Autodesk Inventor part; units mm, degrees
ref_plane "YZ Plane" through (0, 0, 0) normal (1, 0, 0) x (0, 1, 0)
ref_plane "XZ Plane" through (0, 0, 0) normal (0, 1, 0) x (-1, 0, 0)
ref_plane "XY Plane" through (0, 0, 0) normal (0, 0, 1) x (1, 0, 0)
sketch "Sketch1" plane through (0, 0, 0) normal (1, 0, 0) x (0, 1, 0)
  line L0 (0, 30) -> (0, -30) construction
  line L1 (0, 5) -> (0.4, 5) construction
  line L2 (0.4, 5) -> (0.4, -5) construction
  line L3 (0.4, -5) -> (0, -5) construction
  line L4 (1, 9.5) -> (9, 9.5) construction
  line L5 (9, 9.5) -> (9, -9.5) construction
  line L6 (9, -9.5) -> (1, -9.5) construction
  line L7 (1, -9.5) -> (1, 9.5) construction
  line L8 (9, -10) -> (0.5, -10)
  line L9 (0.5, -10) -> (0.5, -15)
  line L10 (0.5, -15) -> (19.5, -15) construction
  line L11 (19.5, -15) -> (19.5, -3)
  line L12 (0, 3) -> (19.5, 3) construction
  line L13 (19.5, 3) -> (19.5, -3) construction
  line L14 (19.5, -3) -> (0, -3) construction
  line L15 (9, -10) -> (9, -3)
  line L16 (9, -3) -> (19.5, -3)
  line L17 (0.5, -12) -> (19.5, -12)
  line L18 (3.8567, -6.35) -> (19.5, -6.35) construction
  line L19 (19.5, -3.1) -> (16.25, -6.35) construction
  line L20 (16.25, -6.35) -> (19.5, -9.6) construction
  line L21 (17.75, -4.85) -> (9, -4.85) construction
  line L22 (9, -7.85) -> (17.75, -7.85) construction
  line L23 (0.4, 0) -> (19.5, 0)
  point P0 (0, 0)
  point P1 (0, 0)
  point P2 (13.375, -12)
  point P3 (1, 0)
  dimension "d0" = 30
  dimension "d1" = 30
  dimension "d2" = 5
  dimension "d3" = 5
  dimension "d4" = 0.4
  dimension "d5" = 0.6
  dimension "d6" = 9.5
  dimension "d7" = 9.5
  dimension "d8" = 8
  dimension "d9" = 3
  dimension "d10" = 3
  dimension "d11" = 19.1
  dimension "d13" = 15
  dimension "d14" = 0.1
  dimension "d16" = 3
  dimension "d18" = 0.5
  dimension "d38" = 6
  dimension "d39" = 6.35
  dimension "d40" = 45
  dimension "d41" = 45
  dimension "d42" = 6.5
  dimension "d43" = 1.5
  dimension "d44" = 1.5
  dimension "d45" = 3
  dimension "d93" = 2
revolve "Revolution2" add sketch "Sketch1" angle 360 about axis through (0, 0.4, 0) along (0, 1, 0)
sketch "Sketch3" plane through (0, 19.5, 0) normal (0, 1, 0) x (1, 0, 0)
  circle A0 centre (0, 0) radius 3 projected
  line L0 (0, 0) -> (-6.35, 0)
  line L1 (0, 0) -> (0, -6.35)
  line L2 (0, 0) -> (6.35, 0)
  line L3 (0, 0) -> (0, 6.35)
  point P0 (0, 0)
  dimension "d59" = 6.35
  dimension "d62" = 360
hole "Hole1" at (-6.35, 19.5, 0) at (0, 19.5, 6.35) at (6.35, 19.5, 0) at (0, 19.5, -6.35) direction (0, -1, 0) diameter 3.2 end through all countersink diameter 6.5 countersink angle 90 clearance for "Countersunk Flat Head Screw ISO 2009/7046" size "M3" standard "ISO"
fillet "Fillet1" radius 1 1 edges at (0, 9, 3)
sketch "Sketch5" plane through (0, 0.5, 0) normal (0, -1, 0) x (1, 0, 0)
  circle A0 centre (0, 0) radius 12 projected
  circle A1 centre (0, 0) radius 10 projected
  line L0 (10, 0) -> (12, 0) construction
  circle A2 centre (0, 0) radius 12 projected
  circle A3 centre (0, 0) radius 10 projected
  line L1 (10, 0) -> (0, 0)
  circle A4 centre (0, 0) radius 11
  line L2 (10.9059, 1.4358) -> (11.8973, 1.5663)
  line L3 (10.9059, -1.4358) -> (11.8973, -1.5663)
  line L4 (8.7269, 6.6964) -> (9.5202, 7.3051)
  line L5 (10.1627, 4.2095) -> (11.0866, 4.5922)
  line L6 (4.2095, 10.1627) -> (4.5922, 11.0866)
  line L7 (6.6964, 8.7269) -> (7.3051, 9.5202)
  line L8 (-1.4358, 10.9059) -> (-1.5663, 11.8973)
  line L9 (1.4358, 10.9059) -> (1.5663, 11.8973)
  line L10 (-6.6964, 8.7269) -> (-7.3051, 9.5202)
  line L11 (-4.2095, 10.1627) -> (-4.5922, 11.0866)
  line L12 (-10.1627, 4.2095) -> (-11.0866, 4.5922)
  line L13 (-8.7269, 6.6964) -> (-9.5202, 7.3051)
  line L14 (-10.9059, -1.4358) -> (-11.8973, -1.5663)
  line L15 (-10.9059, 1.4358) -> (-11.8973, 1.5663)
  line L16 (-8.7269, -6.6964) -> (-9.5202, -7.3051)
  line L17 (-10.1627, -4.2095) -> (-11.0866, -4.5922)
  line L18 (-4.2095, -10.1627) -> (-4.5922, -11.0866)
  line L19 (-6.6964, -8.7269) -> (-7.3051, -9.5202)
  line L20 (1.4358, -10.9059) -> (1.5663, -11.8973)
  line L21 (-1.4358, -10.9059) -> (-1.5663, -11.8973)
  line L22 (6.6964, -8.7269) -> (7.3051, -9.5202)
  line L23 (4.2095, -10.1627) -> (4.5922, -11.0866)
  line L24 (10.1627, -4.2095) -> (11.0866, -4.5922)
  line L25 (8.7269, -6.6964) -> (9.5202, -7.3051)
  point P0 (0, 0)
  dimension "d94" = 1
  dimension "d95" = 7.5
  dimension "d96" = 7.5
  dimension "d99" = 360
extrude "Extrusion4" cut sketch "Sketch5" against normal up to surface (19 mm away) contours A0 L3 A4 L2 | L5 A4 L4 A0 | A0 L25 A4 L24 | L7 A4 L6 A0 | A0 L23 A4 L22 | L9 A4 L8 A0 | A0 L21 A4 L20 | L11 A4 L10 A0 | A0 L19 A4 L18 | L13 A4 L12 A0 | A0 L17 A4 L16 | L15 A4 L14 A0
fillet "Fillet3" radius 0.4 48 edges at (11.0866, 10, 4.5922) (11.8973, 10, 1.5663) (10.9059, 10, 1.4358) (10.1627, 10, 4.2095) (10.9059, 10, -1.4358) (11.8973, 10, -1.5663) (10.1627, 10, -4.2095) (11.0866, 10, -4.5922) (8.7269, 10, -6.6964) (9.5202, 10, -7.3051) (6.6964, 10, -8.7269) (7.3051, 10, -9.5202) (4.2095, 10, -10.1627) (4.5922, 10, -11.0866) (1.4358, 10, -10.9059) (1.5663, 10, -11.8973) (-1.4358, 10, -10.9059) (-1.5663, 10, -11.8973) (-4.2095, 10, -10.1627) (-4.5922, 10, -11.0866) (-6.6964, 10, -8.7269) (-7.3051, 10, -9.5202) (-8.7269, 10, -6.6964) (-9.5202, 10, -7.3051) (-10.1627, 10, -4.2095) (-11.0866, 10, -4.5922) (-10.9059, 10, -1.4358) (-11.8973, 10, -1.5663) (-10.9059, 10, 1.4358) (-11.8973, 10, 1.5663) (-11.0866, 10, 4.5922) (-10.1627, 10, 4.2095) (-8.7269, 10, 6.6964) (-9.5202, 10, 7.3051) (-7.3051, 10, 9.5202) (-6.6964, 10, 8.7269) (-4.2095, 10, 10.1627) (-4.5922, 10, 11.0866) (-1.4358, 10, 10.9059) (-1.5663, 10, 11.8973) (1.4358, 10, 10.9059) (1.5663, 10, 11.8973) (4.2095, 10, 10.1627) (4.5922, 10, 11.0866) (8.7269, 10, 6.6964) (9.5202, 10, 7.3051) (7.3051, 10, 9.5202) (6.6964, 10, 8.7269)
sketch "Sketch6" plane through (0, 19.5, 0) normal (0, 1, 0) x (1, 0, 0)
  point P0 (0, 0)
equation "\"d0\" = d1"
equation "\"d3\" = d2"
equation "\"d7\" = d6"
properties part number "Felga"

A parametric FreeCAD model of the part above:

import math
import FreeCAD as App
import Part
import Sketcher
from FreeCAD import Vector
Q = App.Units.Quantity


def edges_at(feature, points):
    """Names of the edges that pass closest to the given points."""
    edges = feature.Shape.Edges
    near = lambda p: min(range(len(edges)), key=lambda i: edges[i].distToShape(Part.Vertex(*p))[0])
    return sorted({f"Edge{near(p) + 1}" for p in points})


def add_polygon(sketch, points):
    """Adds a closed chain of lines whose ends are joined by coincident constraints."""
    first, n = sketch.GeometryCount, len(points)
    for a, b in zip(points, points[1:] + points[:1]):
        sketch.addGeometry(Part.LineSegment(App.Vector(*a, 0), App.Vector(*b, 0)), False)
    for i in range(n):
        sketch.addConstraint(Sketcher.Constraint("Coincident", first + i, 2, first + (i + 1) % n, 1))

doc = App.newDocument("Part")
body = doc.addObject("PartDesign::Body", "Body")

sketch1 = body.newObject("Sketcher::SketchObject", "Sketch")
sketch1.AttachmentSupport = (doc.getObject("YZ_Plane"), [""])
sketch1.MapMode = "FlatFace"
add_polygon(sketch1, [(9, -3), (9, -10), (0.5, -10), (0.5, -12), (19.5, -12), (19.5, -3)])
sketch1.addConstraint([
    Sketcher.Constraint("Vertical", 0),
    Sketcher.Constraint("Horizontal", 1),
    Sketcher.Constraint("Vertical", 2),
    Sketcher.Constraint("Horizontal", 3),
    Sketcher.Constraint("Vertical", 4),
    Sketcher.Constraint("Horizontal", 5),
    Sketcher.Constraint("DistanceY", 2, 2, 2, 1, 2.0),
    Sketcher.Constraint("DistanceY", 4, 2, -1, 1, 3.0),
    Sketcher.Constraint("DistanceX", -1, 1, 1, 2, 0.5),
    Sketcher.Constraint("DistanceX", 3, 1, 3, 2, 19.0),
    Sketcher.Constraint("DistanceY", 0, 2, 0, 1, 7.0),
    Sketcher.Constraint("DistanceX", 1, 2, 1, 1, 8.5),
])
revolution = body.newObject("PartDesign::Revolution", "Revolution")
revolution.Profile = sketch1
revolution.ReferenceAxis = (sketch1, ["H_Axis"])
revolution.Angle = 360

sketch2 = body.newObject("Sketcher::SketchObject", "Sketch001")
sketch2.AttachmentSupport = (doc.getObject("XZ_Plane"), [""])
sketch2.MapMode = "FlatFace"
sketch2.AttachmentOffset = App.Placement(Vector(0, 0, -19.5), App.Rotation())
sketch2.addGeometry([
    Part.Circle(Vector(-6.3, 0, 0), Vector(0, 0, 1), 1.6),
    Part.Circle(Vector(0, 6.3, 0), Vector(0, 0, 1), 1.6),
    Part.Circle(Vector(6.3, 0, 0), Vector(0, 0, 1), 1.6),
    Part.Circle(Vector(0, -6.3, 0), Vector(0, 0, 1), 1.6),
], False)
sketch2.addConstraint([
    Sketcher.Constraint("Equal", 0, 1),
    Sketcher.Constraint("Equal", 1, 2),
    Sketcher.Constraint("Equal", 2, 3),
    Sketcher.Constraint("Symmetric", 0, 3, 2, 3, -1, 1),
    Sketcher.Constraint("Symmetric", 1, 3, 3, 3, -1, 1),
    Sketcher.Constraint("PointOnObject", 0, 3, -1),
    Sketcher.Constraint("PointOnObject", 1, 3, -2),
    Sketcher.Constraint("Diameter", 0, 3.2),
    Sketcher.Constraint("DistanceX", 0, 3, 2, 3, 12.7),
    Sketcher.Constraint("DistanceY", 3, 3, 1, 3, 12.7),
])
doc.recompute()
hole = body.newObject("PartDesign::Hole", "Hole")
hole.Profile = sketch2
hole.ThreadType = "None"
hole.Diameter = 3.2
hole.DepthType = "ThroughAll"
hole.HoleCutType = "Countersink"
hole.HoleCutDiameter = 6.5
hole.HoleCutCountersinkAngle = 90
hole.Reversed = True
doc.recompute()

fillet = body.newObject("PartDesign::Fillet", "Fillet")
fillet.Base = (hole, edges_at(hole, [(0, 9, 3)]))
fillet.Radius = 1

sketch3 = body.newObject("Sketcher::SketchObject", "Sketch002")
sketch3.AttachmentSupport = (doc.getObject("XZ_Plane"), [""])
sketch3.MapMode = "FlatFace"
sketch3.AttachmentOffset = App.Placement(Vector(0, 0, -0.5), App.Rotation())
sketch3.addGeometry([
    Part.ArcOfCircle(Part.Circle(Vector(0, 0, 0), Vector(0, 0, 1), 12), math.radians(-7.5), math.radians(7.5)),
    Part.LineSegment(Vector(11.9, 1.6, 0), Vector(10.9, 1.4, 0)),
    Part.ArcOfCircle(Part.Circle(Vector(0, 0, 0), Vector(0, 0, 1), 11), math.radians(-7.5), math.radians(7.5)),
    Part.LineSegment(Vector(10.9, -1.4, 0), Vector(11.9, -1.6, 0)),
    Part.LineSegment(Vector(10.2, 4.2, 0), Vector(11.1, 4.6, 0)),
    Part.ArcOfCircle(Part.Circle(Vector(0, 0, 0), Vector(0, 0, 1), 12), math.radians(22.5), math.radians(37.5)),
    Part.LineSegment(Vector(9.5, 7.3, 0), Vector(8.7, 6.7, 0)),
    Part.ArcOfCircle(Part.Circle(Vector(0, 0, 0), Vector(0, 0, 1), 11), math.radians(22.5), math.radians(37.5)),
    Part.ArcOfCircle(Part.Circle(Vector(0, 0, 0), Vector(0, 0, 1), 12), math.radians(-37.5), math.radians(-22.5)),
    Part.LineSegment(Vector(11.1, -4.6, 0), Vector(10.2, -4.2, 0)),
    Part.ArcOfCircle(Part.Circle(Vector(0, 0, 0), Vector(0, 0, 1), 11), math.radians(-37.5), math.radians(-22.5)),
    Part.LineSegment(Vector(8.7, -6.7, 0), Vector(9.5, -7.3, 0)),
    Part.LineSegment(Vector(6.7, 8.7, 0), Vector(7.3, 9.5, 0)),
    Part.ArcOfCircle(Part.Circle(Vector(0, 0, 0), Vector(0, 0, 1), 12), math.radians(52.5), math.radians(67.5)),
    Part.LineSegment(Vector(4.6, 11.1, 0), Vector(4.2, 10.2, 0)),
    Part.ArcOfCircle(Part.Circle(Vector(0, 0, 0), Vector(0, 0, 1), 11), math.radians(52.5), math.radians(67.5)),
    Part.ArcOfCircle(Part.Circle(Vector(0, 0, 0), Vector(0, 0, 1), 12), math.radians(-67.5), math.radians(-52.5)),
    Part.LineSegment(Vector(7.3, -9.5, 0), Vector(6.7, -8.7, 0)),
    Part.ArcOfCircle(Part.Circle(Vector(0, 0, 0), Vector(0, 0, 1), 11), math.radians(-67.5), math.radians(-52.5)),
    Part.LineSegment(Vector(4.2, -10.2, 0), Vector(4.6, -11.1, 0)),
    Part.LineSegment(Vector(1.4, 10.9, 0), Vector(1.6, 11.9, 0)),
    Part.ArcOfCircle(Part.Circle(Vector(0, 0, 0), Vector(0, 0, 1), 12), math.radians(82.5), math.radians(97.5)),
    Part.LineSegment(Vector(-1.6, 11.9, 0), Vector(-1.4, 10.9, 0)),
    Part.ArcOfCircle(Part.Circle(Vector(0, 0, 0), Vector(0, 0, 1), 11), math.radians(82.5), math.radians(97.5)),
    Part.ArcOfCircle(Part.Circle(Vector(0, 0, 0), Vector(0, 0, 1), 12), math.radians(-97.5), math.radians(-82.5)),
    Part.LineSegment(Vector(1.6, -11.9, 0), Vector(1.4, -10.9, 0)),
    Part.ArcOfCircle(Part.Circle(Vector(0, 0, 0), Vector(0, 0, 1), 11), math.radians(-97.5), math.radians(-82.5)),
    Part.LineSegment(Vector(-1.4, -10.9, 0), Vector(-1.6, -11.9, 0)),
    Part.LineSegment(Vector(-4.2, 10.2, 0), Vector(-4.6, 11.1, 0)),
    Part.ArcOfCircle(Part.Circle(Vector(0, 0, 0), Vector(0, 0, 1), 12), math.radians(112.5), math.radians(127.5)),
    Part.LineSegment(Vector(-7.3, 9.5, 0), Vector(-6.7, 8.7, 0)),
    Part.ArcOfCircle(Part.Circle(Vector(0, 0, 0), Vector(0, 0, 1), 11), math.radians(112.5), math.radians(127.5)),
    Part.ArcOfCircle(Part.Circle(Vector(0, 0, 0), Vector(0, 0, 1), 12), math.radians(-127.5), math.radians(-112.5)),
    Part.LineSegment(Vector(-4.6, -11.1, 0), Vector(-4.2, -10.2, 0)),
    Part.ArcOfCircle(Part.Circle(Vector(0, 0, 0), Vector(0, 0, 1), 11), math.radians(-127.5), math.radians(-112.5)),
    Part.LineSegment(Vector(-6.7, -8.7, 0), Vector(-7.3, -9.5, 0)),
    Part.LineSegment(Vector(-8.7, 6.7, 0), Vector(-9.5, 7.3, 0)),
    Part.ArcOfCircle(Part.Circle(Vector(0, 0, 0), Vector(0, 0, 1), 12), math.radians(142.5), math.radians(157.5)),
    Part.LineSegment(Vector(-11.1, 4.6, 0), Vector(-10.2, 4.2, 0)),
    Part.ArcOfCircle(Part.Circle(Vector(0, 0, 0), Vector(0, 0, 1), 11), math.radians(142.5), math.radians(157.5)),
    Part.ArcOfCircle(Part.Circle(Vector(0, 0, 0), Vector(0, 0, 1), 12), math.radians(-157.5), math.radians(-142.5)),
    Part.LineSegment(Vector(-9.5, -7.3, 0), Vector(-8.7, -6.7, 0)),
    Part.ArcOfCircle(Part.Circle(Vector(0, 0, 0), Vector(0, 0, 1), 11), math.radians(-157.5), math.radians(-142.5)),
    Part.LineSegment(Vector(-10.2, -4.2, 0), Vector(-11.1, -4.6, 0)),
    Part.LineSegment(Vector(-10.9, 1.4, 0), Vector(-11.9, 1.6, 0)),
    Part.ArcOfCircle(Part.Circle(Vector(0, 0, 0), Vector(0, 0, 1), 12), math.radians(172.5), math.radians(187.5)),
    Part.LineSegment(Vector(-11.9, -1.6, 0), Vector(-10.9, -1.4, 0)),
    Part.ArcOfCircle(Part.Circle(Vector(0, 0, 0), Vector(0, 0, 1), 11), math.radians(172.5), math.radians(187.5)),
], False)
sketch3.addConstraint([
    Sketcher.Constraint("Coincident", 0, 2, 1, 1),
    Sketcher.Constraint("Coincident", 1, 2, 2, 2),
    Sketcher.Constraint("Coincident", 2, 1, 3, 1),
    Sketcher.Constraint("Coincident", 3, 2, 0, 1),
    Sketcher.Constraint("Coincident", 4, 2, 5, 1),
    Sketcher.Constraint("Coincident", 5, 2, 6, 1),
    Sketcher.Constraint("Coincident", 6, 2, 7, 2),
    Sketcher.Constraint("Coincident", 7, 1, 4, 1),
    Sketcher.Constraint("Coincident", 8, 2, 9, 1),
    Sketcher.Constraint("Coincident", 9, 2, 10, 2),
    Sketcher.Constraint("Coincident", 10, 1, 11, 1),
    Sketcher.Constraint("Coincident", 11, 2, 8, 1),
    Sketcher.Constraint("Coincident", 12, 2, 13, 1),
    Sketcher.Constraint("Coincident", 13, 2, 14, 1),
    Sketcher.Constraint("Coincident", 14, 2, 15, 2),
    Sketcher.Constraint("Coincident", 15, 1, 12, 1),
    Sketcher.Constraint("Coincident", 16, 2, 17, 1),
    Sketcher.Constraint("Coincident", 17, 2, 18, 2),
    Sketcher.Constraint("Coincident", 18, 1, 19, 1),
    Sketcher.Constraint("Coincident", 19, 2, 16, 1),
    Sketcher.Constraint("Coincident", 20, 2, 21, 1),
    Sketcher.Constraint("Coincident", 21, 2, 22, 1),
    Sketcher.Constraint("Coincident", 22, 2, 23, 2),
    Sketcher.Constraint("Coincident", 23, 1, 20, 1),
    Sketcher.Constraint("Coincident", 24, 2, 25, 1),
    Sketcher.Constraint("Coincident", 25, 2, 26, 2),
    Sketcher.Constraint("Coincident", 26, 1, 27, 1),
    Sketcher.Constraint("Coincident", 27, 2, 24, 1),
    Sketcher.Constraint("Coincident", 28, 2, 29, 1),
    Sketcher.Constraint("Coincident", 29, 2, 30, 1),
    Sketcher.Constraint("Coincident", 30, 2, 31, 2),
    Sketcher.Constraint("Coincident", 31, 1, 28, 1),
    Sketcher.Constraint("Coincident", 32, 2, 33, 1),
    Sketcher.Constraint("Coincident", 33, 2, 34, 2),
    Sketcher.Constraint("Coincident", 34, 1, 35, 1),
    Sketcher.Constraint("Coincident", 35, 2, 32, 1),
    Sketcher.Constraint("Coincident", 36, 2, 37, 1),
    Sketcher.Constraint("Coincident", 37, 2, 38, 1),
    Sketcher.Constraint("Coincident", 38, 2, 39, 2),
    Sketcher.Constraint("Coincident", 39, 1, 36, 1),
    Sketcher.Constraint("Coincident", 40, 2, 41, 1),
    Sketcher.Constraint("Coincident", 41, 2, 42, 2),
    Sketcher.Constraint("Coincident", 42, 1, 43, 1),
    Sketcher.Constraint("Coincident", 43, 2, 40, 1),
    Sketcher.Constraint("Coincident", 44, 2, 45, 1),
    Sketcher.Constraint("Coincident", 45, 2, 46, 1),
    Sketcher.Constraint("Coincident", 46, 2, 47, 2),
    Sketcher.Constraint("Coincident", 47, 1, 44, 1),
    Sketcher.Constraint("Coincident", 0, 3, -1, 1),
    Sketcher.Constraint("Coincident", 2, 3, -1, 1),
    Sketcher.Constraint("Coincident", 5, 3, -1, 1),
    Sketcher.Constraint("Coincident", 7, 3, -1, 1),
    Sketcher.Constraint("Coincident", 8, 3, -1, 1),
    Sketcher.Constraint("Coincident", 10, 3, -1, 1),
    Sketcher.Constraint("Coincident", 13, 3, -1, 1),
    Sketcher.Constraint("Coincident", 15, 3, -1, 1),
    Sketcher.Constraint("Coincident", 16, 3, -1, 1),
    Sketcher.Constraint("Coincident", 18, 3, -1, 1),
    Sketcher.Constraint("Coincident", 21, 3, -1, 1),
    Sketcher.Constraint("Coincident", 23, 3, -1, 1),
    Sketcher.Constraint("Coincident", 24, 3, -1, 1),
    Sketcher.Constraint("Coincident", 26, 3, -1, 1),
    Sketcher.Constraint("Coincident", 29, 3, -1, 1),
    Sketcher.Constraint("Coincident", 31, 3, -1, 1),
    Sketcher.Constraint("Coincident", 32, 3, -1, 1),
    Sketcher.Constraint("Coincident", 34, 3, -1, 1),
    Sketcher.Constraint("Coincident", 37, 3, -1, 1),
    Sketcher.Constraint("Coincident", 39, 3, -1, 1),
    Sketcher.Constraint("Coincident", 40, 3, -1, 1),
    Sketcher.Constraint("Coincident", 42, 3, -1, 1),
    Sketcher.Constraint("Coincident", 45, 3, -1, 1),
    Sketcher.Constraint("Coincident", 47, 3, -1, 1),
    Sketcher.Constraint("Equal", 0, 5),
    Sketcher.Constraint("Equal", 2, 7),
    Sketcher.Constraint("Equal", 5, 8),
    Sketcher.Constraint("Equal", 7, 10),
    Sketcher.Constraint("Equal", 8, 13),
    Sketcher.Constraint("Equal", 10, 15),
    Sketcher.Constraint("Equal", 13, 16),
    Sketcher.Constraint("Equal", 15, 18),
    Sketcher.Constraint("Equal", 16, 21),
    Sketcher.Constraint("Equal", 18, 23),
    Sketcher.Constraint("Equal", 21, 24),
    Sketcher.Constraint("Equal", 23, 26),
    Sketcher.Constraint("Equal", 24, 29),
    Sketcher.Constraint("Equal", 26, 31),
    Sketcher.Constraint("Equal", 29, 32),
    Sketcher.Constraint("Equal", 31, 34),
    Sketcher.Constraint("Equal", 32, 37),
    Sketcher.Constraint("Equal", 34, 39),
    Sketcher.Constraint("Equal", 37, 40),
    Sketcher.Constraint("Equal", 39, 42),
    Sketcher.Constraint("Equal", 40, 45),
    Sketcher.Constraint("Equal", 42, 47),
    Sketcher.Constraint("Perpendicular", 11, 12),
    Sketcher.Constraint("Perpendicular", 9, 14),
    Sketcher.Constraint("Perpendicular", 6, 17),
    Sketcher.Constraint("Perpendicular", 4, 19),
    Sketcher.Constraint("Perpendicular", 3, 20),
    Sketcher.Constraint("Perpendicular", 1, 22),
    Sketcher.Constraint("Parallel", 22, 25),
    Sketcher.Constraint("Parallel", 20, 27),
    Sketcher.Constraint("Parallel", 19, 28),
    Sketcher.Constraint("Parallel", 17, 30),
    Sketcher.Constraint("Parallel", 14, 33),
    Sketcher.Constraint("Parallel", 12, 35),
    Sketcher.Constraint("Perpendicular", 35, 36),
    Sketcher.Constraint("Perpendicular", 33, 38),
    Sketcher.Constraint("Perpendicular", 30, 41),
    Sketcher.Constraint("Perpendicular", 28, 43),
    Sketcher.Constraint("Perpendicular", 27, 44),
    Sketcher.Constraint("Perpendicular", 25, 46),
    Sketcher.Constraint("Horizontal", 20, 2, 21, 2),
    Sketcher.Constraint("Horizontal", 22, 2, 23, 1),
    Sketcher.Constraint("Horizontal", 25, 2, 26, 1),
    Sketcher.Constraint("Horizontal", 13, 2, 28, 2),
    Sketcher.Constraint("Horizontal", 12, 2, 29, 2),
    Sketcher.Constraint("Horizontal", 15, 1, 30, 2),
    Sketcher.Constraint("Horizontal", 14, 2, 31, 1),
    Sketcher.Constraint("Horizontal", 19, 2, 32, 2),
    Sketcher.Constraint("Horizontal", 17, 2, 34, 1),
    Sketcher.Constraint("Horizontal", 5, 2, 36, 2),
    Sketcher.Constraint("Horizontal", 4, 2, 37, 2),
    Sketcher.Constraint("Horizontal", 11, 2, 40, 2),
    Sketcher.Constraint("Horizontal", 9, 2, 42, 1),
    Sketcher.Constraint("Horizontal", 0, 2, 44, 2),
    Sketcher.Constraint("Horizontal", 3, 2, 45, 2),
    Sketcher.Constraint("Vertical", 1, 2, 2, 1),
    Sketcher.Constraint("Vertical", 4, 2, 8, 2),
    Sketcher.Constraint("Vertical", 6, 2, 10, 1),
    Sketcher.Constraint("Vertical", 12, 2, 16, 2),
    Sketcher.Constraint("Vertical", 14, 2, 18, 1),
    Sketcher.Constraint("Vertical", 20, 2, 24, 2),
    Sketcher.Constraint("Distance", 1, 1.0),
    Sketcher.Constraint("Radius", 0, 12.0),
    Sketcher.Constraint("Angle", 1, Q("-172.5012 deg")),
    Sketcher.Constraint("Angle", 4, Q("22.5004 deg")),
    Sketcher.Constraint("Angle", 6, Q("-142.501 deg")),
    Sketcher.Constraint("DistanceX", -1, 1, 1, 2, 10.906),
    Sketcher.Constraint("DistanceX", -1, 1, 6, 2, 8.727),
    Sketcher.Constraint("DistanceX", -1, 1, 12, 2, 7.305),
    Sketcher.Constraint("DistanceY", -1, 1, 22, 2, 10.906),
    Sketcher.Constraint("DistanceX", -1, 1, 4, 2, 11.0866),
    Sketcher.Constraint("DistanceX", -1, 1, 13, 2, 4.5922),
])
pocket1 = body.newObject("PartDesign::Pocket", "Pocket")
pocket1.Profile = sketch3
pocket1.Length = 19
doc.recompute()

fillet2 = body.newObject("PartDesign::Fillet", "Fillet001")
fillet2.Base = (pocket1, edges_at(pocket1, [
    (11.087, 10, 4.592),
    (11.897, 10, 1.566),
    (10.906, 10, 1.436),
    (10.163, 10, 4.21),
    (10.906, 10, -1.436),
    (11.897, 10, -1.566),
    (10.163, 10, -4.21),
    (11.087, 10, -4.592),
    (8.727, 10, -6.696),
    (9.52, 10, -7.305),
    (6.696, 10, -8.727),
    (7.305, 10, -9.52),
    (4.21, 10, -10.163),
    (4.592, 10, -11.087),
    (1.436, 10, -10.906),
    (1.566, 10, -11.897),
    (-1.436, 10, -10.906),
    (-1.566, 10, -11.897),
    (-4.21, 10, -10.163),
    (-4.592, 10, -11.087),
    (-6.696, 10, -8.727),
    (-7.305, 10, -9.52),
    (-8.727, 10, -6.696),
    (-9.52, 10, -7.305),
    (-10.163, 10, -4.21),
    (-11.087, 10, -4.592),
    (-10.906, 10, -1.436),
    (-11.897, 10, -1.566),
    (-10.906, 10, 1.436),
    (-11.897, 10, 1.566),
    (-11.087, 10, 4.592),
    (-10.163, 10, 4.21),
    (-8.727, 10, 6.696),
    (-9.52, 10, 7.305),
    (-7.305, 10, 9.52),
    (-6.696, 10, 8.727),
    (-4.21, 10, 10.163),
    (-4.592, 10, 11.087),
    (-1.436, 10, 10.906),
    (-1.566, 10, 11.897),
    (1.436, 10, 10.906),
    (1.566, 10, 11.897),
    (4.21, 10, 10.163),
    (4.592, 10, 11.087),
    (8.727, 10, 6.696),
    (9.52, 10, 7.305),
    (7.305, 10, 9.52),
    (6.696, 10, 8.727),
]))
fillet2.Radius = 0.4

doc.recompute()
